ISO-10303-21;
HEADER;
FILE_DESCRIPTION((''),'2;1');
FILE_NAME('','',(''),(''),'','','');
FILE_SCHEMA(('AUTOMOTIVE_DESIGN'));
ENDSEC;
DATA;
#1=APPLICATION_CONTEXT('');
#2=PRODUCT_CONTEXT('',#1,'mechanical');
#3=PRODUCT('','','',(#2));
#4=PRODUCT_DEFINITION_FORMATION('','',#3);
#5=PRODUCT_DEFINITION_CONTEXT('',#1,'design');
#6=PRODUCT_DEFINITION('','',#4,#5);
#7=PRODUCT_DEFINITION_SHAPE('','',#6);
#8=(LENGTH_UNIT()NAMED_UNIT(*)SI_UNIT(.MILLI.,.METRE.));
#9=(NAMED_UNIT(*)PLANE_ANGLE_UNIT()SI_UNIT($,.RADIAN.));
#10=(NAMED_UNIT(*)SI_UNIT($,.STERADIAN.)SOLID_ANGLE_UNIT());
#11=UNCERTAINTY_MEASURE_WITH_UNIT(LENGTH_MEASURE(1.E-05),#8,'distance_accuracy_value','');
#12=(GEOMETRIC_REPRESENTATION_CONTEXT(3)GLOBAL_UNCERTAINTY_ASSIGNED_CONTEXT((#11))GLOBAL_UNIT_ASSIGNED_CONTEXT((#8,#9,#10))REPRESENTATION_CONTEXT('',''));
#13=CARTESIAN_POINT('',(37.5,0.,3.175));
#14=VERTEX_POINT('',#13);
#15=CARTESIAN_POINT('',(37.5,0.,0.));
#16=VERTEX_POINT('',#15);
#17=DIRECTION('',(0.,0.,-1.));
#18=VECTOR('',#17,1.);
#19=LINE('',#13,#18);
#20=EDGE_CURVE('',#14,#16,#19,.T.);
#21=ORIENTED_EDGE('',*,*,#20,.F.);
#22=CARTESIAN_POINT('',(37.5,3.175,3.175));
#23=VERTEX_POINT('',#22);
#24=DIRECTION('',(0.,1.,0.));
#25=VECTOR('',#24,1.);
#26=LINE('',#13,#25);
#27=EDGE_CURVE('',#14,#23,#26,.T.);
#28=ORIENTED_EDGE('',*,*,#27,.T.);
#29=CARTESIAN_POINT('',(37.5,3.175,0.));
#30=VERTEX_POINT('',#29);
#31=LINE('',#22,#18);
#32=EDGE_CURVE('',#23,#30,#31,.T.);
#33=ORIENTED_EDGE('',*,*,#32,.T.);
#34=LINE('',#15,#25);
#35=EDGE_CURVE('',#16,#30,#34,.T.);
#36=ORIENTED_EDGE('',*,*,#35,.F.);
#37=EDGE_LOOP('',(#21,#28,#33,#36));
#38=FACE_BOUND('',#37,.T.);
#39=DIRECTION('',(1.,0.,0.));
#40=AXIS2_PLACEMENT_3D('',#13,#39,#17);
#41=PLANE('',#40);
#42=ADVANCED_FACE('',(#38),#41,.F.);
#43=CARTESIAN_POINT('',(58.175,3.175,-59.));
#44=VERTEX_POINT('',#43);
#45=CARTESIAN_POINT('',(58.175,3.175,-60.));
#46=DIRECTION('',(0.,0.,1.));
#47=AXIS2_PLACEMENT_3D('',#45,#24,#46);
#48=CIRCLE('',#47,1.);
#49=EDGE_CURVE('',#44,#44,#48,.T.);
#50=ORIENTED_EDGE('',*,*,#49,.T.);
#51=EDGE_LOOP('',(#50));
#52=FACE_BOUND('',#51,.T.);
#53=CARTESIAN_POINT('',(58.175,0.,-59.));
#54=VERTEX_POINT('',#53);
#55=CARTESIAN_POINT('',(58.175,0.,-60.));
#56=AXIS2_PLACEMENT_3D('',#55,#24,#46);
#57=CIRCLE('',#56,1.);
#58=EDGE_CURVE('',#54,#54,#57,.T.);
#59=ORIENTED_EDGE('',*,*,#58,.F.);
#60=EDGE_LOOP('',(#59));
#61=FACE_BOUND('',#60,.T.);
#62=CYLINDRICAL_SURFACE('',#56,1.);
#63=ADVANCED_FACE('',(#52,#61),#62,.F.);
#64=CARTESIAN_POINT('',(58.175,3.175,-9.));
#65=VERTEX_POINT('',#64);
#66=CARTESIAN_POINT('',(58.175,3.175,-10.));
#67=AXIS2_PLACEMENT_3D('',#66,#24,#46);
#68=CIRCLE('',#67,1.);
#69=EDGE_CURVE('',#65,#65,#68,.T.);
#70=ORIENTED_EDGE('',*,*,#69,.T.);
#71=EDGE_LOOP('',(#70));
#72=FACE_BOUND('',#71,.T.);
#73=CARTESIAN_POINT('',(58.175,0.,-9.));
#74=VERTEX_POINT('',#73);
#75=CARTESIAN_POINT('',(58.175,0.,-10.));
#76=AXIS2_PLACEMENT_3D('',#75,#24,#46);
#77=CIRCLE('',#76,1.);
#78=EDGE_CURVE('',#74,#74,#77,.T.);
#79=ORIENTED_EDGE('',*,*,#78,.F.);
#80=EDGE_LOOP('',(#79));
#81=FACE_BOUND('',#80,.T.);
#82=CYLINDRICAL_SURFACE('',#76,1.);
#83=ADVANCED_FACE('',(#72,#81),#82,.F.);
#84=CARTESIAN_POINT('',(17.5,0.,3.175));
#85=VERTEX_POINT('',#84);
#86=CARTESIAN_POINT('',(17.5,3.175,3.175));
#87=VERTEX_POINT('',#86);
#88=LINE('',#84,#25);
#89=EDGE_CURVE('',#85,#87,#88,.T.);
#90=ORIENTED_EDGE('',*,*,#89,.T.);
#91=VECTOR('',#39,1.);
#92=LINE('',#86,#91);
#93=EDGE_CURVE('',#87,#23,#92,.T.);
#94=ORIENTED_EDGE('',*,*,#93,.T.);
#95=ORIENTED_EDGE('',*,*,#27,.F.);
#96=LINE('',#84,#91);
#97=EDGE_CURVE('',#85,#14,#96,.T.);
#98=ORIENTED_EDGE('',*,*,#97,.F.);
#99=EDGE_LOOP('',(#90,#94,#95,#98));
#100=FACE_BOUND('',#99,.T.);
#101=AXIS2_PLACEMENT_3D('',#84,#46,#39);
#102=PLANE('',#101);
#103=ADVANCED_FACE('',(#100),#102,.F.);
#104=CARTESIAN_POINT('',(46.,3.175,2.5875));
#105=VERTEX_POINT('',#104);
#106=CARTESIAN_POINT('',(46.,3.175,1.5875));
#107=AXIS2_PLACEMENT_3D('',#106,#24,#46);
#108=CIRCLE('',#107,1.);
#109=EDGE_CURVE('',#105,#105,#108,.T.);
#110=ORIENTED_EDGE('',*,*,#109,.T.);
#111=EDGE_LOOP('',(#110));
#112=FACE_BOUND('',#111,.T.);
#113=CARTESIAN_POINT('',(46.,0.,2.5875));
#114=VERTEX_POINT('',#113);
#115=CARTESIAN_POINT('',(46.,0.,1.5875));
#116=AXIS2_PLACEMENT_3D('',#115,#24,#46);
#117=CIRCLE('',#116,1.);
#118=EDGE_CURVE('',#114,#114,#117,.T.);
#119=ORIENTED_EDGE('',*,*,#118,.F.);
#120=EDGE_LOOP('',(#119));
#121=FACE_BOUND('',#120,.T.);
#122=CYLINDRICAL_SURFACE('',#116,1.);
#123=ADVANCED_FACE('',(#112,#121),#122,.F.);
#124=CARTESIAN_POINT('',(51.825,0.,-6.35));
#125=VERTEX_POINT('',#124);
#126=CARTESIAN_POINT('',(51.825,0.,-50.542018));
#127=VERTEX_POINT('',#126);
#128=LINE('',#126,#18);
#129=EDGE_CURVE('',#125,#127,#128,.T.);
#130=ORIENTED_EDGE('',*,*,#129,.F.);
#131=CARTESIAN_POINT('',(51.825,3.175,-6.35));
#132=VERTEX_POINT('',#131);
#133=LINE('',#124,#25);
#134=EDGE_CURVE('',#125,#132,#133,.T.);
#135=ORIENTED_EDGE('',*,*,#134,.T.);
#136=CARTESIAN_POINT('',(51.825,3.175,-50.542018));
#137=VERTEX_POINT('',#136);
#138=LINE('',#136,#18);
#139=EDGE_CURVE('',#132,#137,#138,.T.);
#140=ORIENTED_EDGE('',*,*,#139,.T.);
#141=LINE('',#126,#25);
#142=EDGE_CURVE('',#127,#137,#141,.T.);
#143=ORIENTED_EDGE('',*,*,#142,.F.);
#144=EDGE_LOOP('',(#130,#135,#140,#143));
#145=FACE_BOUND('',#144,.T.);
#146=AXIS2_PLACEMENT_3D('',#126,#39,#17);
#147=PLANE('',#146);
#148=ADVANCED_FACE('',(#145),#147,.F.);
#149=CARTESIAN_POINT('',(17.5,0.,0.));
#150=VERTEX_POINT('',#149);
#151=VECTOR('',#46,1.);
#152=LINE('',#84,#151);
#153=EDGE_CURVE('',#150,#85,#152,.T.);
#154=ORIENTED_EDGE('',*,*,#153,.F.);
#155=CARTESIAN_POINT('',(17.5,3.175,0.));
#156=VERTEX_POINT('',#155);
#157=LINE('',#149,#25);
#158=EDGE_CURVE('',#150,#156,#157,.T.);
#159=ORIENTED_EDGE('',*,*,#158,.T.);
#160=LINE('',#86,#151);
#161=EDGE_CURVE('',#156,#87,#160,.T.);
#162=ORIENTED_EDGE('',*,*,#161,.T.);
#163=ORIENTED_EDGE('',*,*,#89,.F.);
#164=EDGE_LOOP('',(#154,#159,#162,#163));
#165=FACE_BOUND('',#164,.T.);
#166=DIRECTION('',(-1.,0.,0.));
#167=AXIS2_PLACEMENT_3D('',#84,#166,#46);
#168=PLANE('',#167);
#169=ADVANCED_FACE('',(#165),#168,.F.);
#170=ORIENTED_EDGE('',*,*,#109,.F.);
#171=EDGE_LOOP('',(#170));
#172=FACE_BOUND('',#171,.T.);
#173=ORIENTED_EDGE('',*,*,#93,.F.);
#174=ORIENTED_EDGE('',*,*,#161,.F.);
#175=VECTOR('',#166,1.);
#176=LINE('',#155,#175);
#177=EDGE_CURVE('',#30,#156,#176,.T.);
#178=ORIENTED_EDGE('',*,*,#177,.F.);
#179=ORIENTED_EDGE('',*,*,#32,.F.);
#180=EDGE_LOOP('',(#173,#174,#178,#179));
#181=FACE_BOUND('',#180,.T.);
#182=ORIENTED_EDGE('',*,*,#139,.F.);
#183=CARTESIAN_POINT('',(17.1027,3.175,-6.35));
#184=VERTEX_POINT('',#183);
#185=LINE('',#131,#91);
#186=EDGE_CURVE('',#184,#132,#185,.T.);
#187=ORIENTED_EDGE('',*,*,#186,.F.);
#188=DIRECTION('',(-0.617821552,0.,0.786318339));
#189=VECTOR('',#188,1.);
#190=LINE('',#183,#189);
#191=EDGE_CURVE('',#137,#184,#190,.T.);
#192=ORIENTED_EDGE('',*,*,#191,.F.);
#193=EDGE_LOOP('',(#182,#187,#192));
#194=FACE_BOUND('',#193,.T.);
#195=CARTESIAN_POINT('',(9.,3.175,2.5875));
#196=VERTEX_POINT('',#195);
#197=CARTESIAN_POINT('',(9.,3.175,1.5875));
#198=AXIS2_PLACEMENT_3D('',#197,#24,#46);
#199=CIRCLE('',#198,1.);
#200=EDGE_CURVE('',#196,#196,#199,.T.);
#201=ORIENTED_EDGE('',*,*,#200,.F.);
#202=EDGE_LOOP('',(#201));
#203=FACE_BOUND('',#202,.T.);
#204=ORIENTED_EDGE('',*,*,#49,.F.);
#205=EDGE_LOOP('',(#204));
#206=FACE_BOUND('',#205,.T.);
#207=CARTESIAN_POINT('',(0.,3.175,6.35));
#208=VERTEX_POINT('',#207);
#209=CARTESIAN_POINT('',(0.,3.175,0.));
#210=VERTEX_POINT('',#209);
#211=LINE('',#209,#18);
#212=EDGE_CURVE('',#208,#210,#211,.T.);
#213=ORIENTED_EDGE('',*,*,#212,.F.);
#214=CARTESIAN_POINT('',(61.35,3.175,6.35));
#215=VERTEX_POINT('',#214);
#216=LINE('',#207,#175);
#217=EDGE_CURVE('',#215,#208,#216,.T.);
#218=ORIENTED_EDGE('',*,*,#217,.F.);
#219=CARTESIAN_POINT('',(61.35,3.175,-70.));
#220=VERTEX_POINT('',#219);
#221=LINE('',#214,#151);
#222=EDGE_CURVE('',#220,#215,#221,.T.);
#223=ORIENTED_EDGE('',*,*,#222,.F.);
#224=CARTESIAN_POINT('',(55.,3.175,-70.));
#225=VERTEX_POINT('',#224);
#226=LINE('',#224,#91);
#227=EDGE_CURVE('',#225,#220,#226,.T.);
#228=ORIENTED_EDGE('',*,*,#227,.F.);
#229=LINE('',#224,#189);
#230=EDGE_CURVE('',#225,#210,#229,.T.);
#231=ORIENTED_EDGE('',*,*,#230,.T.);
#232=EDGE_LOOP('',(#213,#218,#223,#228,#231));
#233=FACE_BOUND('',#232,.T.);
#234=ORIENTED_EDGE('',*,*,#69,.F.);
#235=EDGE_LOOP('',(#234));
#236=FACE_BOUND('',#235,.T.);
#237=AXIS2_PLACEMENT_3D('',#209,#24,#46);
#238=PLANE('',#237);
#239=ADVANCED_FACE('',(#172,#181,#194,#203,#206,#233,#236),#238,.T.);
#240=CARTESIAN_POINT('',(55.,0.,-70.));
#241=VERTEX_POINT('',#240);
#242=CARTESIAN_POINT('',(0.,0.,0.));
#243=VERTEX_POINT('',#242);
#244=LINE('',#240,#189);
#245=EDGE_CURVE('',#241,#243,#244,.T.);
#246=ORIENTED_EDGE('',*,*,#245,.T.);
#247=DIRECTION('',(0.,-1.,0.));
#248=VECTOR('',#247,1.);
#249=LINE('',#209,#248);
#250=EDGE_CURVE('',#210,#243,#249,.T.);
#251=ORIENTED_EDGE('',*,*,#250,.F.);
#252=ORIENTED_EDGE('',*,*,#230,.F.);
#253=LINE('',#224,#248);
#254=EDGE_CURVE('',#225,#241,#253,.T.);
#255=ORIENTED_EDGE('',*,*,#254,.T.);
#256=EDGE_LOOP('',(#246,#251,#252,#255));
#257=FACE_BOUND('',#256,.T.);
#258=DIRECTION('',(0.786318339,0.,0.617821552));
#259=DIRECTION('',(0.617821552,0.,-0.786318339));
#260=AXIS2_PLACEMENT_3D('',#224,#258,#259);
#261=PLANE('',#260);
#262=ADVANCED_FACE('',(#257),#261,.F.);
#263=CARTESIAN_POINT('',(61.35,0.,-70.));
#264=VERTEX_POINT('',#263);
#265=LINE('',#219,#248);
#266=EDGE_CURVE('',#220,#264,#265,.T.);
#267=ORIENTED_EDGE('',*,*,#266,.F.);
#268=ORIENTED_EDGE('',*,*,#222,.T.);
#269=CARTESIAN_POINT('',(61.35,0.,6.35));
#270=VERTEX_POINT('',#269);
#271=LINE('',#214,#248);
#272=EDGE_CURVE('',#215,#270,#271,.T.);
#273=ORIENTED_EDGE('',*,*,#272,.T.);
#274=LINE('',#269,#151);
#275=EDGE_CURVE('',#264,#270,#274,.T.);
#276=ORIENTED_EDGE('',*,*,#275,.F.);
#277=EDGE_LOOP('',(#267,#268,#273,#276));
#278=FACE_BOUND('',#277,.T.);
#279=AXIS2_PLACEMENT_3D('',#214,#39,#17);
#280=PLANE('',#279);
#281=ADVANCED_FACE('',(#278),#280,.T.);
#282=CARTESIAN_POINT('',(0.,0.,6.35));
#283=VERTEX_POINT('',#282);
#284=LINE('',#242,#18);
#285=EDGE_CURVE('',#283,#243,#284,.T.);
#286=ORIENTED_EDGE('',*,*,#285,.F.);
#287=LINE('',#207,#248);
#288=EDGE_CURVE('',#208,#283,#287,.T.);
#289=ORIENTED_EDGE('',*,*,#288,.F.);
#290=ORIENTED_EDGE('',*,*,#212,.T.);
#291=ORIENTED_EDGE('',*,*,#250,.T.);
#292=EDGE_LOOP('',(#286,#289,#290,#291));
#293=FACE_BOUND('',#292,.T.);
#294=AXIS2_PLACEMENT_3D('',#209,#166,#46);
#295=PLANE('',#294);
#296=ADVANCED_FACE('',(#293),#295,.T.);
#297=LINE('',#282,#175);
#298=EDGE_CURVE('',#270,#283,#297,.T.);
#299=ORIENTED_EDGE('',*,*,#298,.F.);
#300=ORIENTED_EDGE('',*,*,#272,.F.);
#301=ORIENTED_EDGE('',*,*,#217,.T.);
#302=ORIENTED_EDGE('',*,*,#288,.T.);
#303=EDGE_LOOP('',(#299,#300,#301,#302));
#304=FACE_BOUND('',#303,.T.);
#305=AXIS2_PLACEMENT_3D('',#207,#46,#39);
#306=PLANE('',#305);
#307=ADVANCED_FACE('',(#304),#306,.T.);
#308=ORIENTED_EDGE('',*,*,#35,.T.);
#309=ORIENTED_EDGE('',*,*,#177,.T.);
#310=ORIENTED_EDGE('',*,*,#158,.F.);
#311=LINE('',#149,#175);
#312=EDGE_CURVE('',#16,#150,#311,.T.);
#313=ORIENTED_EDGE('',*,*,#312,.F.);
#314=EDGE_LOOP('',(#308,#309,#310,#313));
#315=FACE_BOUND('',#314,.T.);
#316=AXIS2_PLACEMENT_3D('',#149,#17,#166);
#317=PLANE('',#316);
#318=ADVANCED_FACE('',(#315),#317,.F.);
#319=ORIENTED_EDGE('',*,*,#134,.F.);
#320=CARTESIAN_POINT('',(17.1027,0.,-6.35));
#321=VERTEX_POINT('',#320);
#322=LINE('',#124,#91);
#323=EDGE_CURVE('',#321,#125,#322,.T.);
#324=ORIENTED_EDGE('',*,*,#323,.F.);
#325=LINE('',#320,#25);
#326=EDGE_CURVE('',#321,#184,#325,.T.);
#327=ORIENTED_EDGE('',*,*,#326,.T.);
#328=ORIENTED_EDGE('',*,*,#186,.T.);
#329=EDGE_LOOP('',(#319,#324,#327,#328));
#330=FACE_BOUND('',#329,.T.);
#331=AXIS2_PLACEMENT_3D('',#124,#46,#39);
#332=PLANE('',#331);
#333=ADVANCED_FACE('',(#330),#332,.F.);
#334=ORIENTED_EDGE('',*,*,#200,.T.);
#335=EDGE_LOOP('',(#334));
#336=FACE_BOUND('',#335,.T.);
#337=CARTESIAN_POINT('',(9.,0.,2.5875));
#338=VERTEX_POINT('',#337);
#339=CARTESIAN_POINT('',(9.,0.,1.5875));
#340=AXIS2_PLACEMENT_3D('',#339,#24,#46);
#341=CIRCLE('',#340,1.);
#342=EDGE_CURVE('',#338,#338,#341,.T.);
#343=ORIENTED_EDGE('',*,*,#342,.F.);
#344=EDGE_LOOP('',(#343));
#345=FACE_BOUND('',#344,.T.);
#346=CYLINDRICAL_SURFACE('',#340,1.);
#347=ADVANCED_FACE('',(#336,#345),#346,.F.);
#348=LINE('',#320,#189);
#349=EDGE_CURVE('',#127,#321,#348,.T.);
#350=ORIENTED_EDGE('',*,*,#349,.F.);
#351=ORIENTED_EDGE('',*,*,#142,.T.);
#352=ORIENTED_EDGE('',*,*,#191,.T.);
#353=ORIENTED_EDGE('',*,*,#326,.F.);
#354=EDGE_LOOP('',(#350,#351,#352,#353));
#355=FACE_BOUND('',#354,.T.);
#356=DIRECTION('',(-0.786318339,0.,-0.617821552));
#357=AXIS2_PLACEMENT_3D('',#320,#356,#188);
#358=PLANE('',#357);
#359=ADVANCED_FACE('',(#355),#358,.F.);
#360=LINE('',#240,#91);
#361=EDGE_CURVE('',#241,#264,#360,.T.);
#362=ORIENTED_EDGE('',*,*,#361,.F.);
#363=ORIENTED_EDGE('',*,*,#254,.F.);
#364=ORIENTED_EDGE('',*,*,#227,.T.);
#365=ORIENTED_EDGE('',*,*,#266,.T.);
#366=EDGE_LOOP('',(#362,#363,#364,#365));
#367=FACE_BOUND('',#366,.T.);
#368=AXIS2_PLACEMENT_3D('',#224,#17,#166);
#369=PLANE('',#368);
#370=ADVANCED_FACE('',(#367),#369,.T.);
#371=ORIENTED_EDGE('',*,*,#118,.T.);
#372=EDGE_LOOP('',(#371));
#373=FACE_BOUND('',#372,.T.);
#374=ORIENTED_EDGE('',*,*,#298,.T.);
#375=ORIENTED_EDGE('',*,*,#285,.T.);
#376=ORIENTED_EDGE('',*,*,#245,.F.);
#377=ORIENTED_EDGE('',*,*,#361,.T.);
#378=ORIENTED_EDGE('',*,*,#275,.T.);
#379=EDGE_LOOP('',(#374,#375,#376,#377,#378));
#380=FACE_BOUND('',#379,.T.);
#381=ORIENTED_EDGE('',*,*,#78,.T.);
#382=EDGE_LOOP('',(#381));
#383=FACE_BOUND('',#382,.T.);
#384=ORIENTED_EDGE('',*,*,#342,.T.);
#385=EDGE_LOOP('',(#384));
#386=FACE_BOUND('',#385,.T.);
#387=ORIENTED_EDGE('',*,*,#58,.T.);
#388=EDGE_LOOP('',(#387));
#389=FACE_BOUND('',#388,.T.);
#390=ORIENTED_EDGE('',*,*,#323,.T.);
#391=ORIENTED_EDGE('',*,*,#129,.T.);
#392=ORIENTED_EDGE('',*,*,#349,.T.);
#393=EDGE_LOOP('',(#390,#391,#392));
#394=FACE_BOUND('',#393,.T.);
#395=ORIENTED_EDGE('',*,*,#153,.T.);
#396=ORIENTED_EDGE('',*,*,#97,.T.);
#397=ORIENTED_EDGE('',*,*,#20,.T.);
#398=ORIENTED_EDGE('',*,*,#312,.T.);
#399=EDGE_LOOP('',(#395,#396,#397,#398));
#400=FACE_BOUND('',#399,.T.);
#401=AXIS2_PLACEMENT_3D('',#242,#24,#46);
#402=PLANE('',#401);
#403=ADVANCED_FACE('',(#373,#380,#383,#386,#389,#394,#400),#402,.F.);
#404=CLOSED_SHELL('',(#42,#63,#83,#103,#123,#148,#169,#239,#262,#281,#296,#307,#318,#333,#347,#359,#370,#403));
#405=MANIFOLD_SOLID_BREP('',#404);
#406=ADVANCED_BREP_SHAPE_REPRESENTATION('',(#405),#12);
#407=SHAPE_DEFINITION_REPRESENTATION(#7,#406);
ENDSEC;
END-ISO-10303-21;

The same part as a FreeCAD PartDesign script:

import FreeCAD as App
import Part
import Sketcher
Q = App.Units.Quantity


def add_polygon(sketch, points):
    """Adds a closed chain of lines whose ends are joined by coincident constraints."""
    first, n = sketch.GeometryCount, len(points)
    for a, b in zip(points, points[1:] + points[:1]):
        sketch.addGeometry(Part.LineSegment(App.Vector(*a, 0), App.Vector(*b, 0)), False)
    for i in range(n):
        sketch.addConstraint(Sketcher.Constraint("Coincident", first + i, 2, first + (i + 1) % n, 1))

doc = App.newDocument("Part")
body = doc.addObject("PartDesign::Body", "Body")

# Sketch on XZ plane
sketch1 = body.newObject("Sketcher::SketchObject", "Sketch")
sketch1.AttachmentSupport = (doc.getObject("XZ_Plane"), [""])
sketch1.MapMode = "FlatFace"
add_polygon(sketch1, [(0, 0), (55, 0), (55, -70)])  # lines 0-2
sketch1.addConstraint(Sketcher.Constraint("Horizontal", 0))
sketch1.addConstraint(Sketcher.Constraint("Vertical", 1))
sketch1.addConstraint(Sketcher.Constraint("Coincident", 2, 2, -1, 1))
sketch1.addConstraint(Sketcher.Constraint("DistanceX", 0, 1, 0, 2, Q("55 mm")))
sketch1.addConstraint(Sketcher.Constraint("DistanceY", 1, 2, 1, 1, Q("70 mm")))
pad1 = body.newObject("PartDesign::Pad", "Pad")
pad1.Profile = sketch1
pad1.Length = 3.175
pad1.Reversed = True

# Sketch on XZ plane
sketch2 = body.newObject("Sketcher::SketchObject", "Sketch001")
sketch2.AttachmentSupport = (doc.getObject("XZ_Plane"), [""])
sketch2.MapMode = "FlatFace"
add_polygon(sketch2, [(0, 6), (0, 0), (55, 0), (55, 6)])  # lines 0-3
sketch2.addConstraint(Sketcher.Constraint("Vertical", 0))
sketch2.addConstraint(Sketcher.Constraint("Horizontal", 1))
sketch2.addConstraint(Sketcher.Constraint("Vertical", 2))
sketch2.addConstraint(Sketcher.Constraint("Horizontal", 3))
sketch2.addConstraint(Sketcher.Constraint("Coincident", 0, 2, -1, 1))
sketch2.addConstraint(Sketcher.Constraint("DistanceX", 1, 1, 1, 2, Q("55 mm")))
sketch2.addConstraint(Sketcher.Constraint("DistanceY", 0, 2, 0, 1, Q("6.35 mm")))
pad2 = body.newObject("PartDesign::Pad", "Pad001")
pad2.Profile = sketch2
pad2.Length = 3.175
pad2.Reversed = True

# Sketch on XZ plane
sketch3 = body.newObject("Sketcher::SketchObject", "Sketch002")
sketch3.AttachmentSupport = (doc.getObject("XZ_Plane"), [""])
sketch3.MapMode = "FlatFace"
add_polygon(sketch3, [(55, 6), (55, -70), (61, -70), (61, 6)])  # lines 0-3
sketch3.addConstraint(Sketcher.Constraint("Vertical", 0))
sketch3.addConstraint(Sketcher.Constraint("Horizontal", 1))
sketch3.addConstraint(Sketcher.Constraint("Vertical", 2))
sketch3.addConstraint(Sketcher.Constraint("Horizontal", 3))
sketch3.addConstraint(Sketcher.Constraint("DistanceX", -1, 1, 0, 2, Q("55 mm")))
sketch3.addConstraint(Sketcher.Constraint("DistanceY", 0, 2, -1, 1, Q("70 mm")))
sketch3.addConstraint(Sketcher.Constraint("DistanceX", 1, 1, 1, 2, Q("6.35 mm")))
sketch3.addConstraint(Sketcher.Constraint("DistanceY", 0, 2, 0, 1, Q("76.35 mm")))
pad3 = body.newObject("PartDesign::Pad", "Pad002")
pad3.Profile = sketch3
pad3.Length = 3.175
pad3.Reversed = True

# Sketch on XZ plane
sketch4 = body.newObject("Sketcher::SketchObject", "Sketch003")
sketch4.AttachmentSupport = (doc.getObject("XZ_Plane"), [""])
sketch4.MapMode = "FlatFace"
sketch4.AttachmentOffset = App.Placement(App.Vector(0, 0, -3.175), App.Rotation())
sketch4.addGeometry(Part.Circle(App.Vector(9, 1.6, 0), App.Vector(0, 0, 1), 1), False)  # 0
sketch4.addGeometry(Part.Circle(App.Vector(46, 1.6, 0), App.Vector(0, 0, 1), 1), False)  # 1
sketch4.addGeometry(Part.Circle(App.Vector(58.2, -60, 0), App.Vector(0, 0, 1), 1), False)  # 2
sketch4.addGeometry(Part.Circle(App.Vector(58.2, -10, 0), App.Vector(0, 0, 1), 1), False)  # 3
add_polygon(sketch4, [(17.5, 0), (17.5, 3.2), (37.5, 3.2), (37.5, 0)])  # lines 4-7
sketch4.addConstraint(Sketcher.Constraint("Vertical", 4))
sketch4.addConstraint(Sketcher.Constraint("Horizontal", 5))
sketch4.addConstraint(Sketcher.Constraint("Vertical", 6))
sketch4.addConstraint(Sketcher.Constraint("Horizontal", 7))
sketch4.addConstraint(Sketcher.Constraint("Equal", 0, 1))
sketch4.addConstraint(Sketcher.Constraint("Equal", 1, 2))
sketch4.addConstraint(Sketcher.Constraint("Equal", 2, 3))
sketch4.addConstraint(Sketcher.Constraint("PointOnObject", 6, 2, -1))
sketch4.addConstraint(Sketcher.Constraint("Horizontal", 0, 3, 1, 3))
sketch4.addConstraint(Sketcher.Constraint("Vertical", 2, 3, 3, 3))
sketch4.addConstraint(Sketcher.Constraint("Diameter", 0, Q("2 mm")))
sketch4.addConstraint(Sketcher.Constraint("DistanceX", 5, 1, 5, 2, Q("20 mm")))
sketch4.addConstraint(Sketcher.Constraint("DistanceX", -1, 1, 0, 3, Q("9 mm")))
sketch4.addConstraint(Sketcher.Constraint("DistanceX", -1, 1, 1, 3, Q("46 mm")))
sketch4.addConstraint(Sketcher.Constraint("DistanceY", 2, 3, -1, 1, Q("60 mm")))
sketch4.addConstraint(Sketcher.Constraint("DistanceY", 3, 3, -1, 1, Q("10 mm")))
sketch4.addConstraint(Sketcher.Constraint("DistanceX", -1, 1, 4, 2, Q("17.5 mm")))
sketch4.addConstraint(Sketcher.Constraint("DistanceY", 4, 1, 4, 2, Q("3.175 mm")))
sketch4.addConstraint(Sketcher.Constraint("DistanceX", -1, 1, 2, 3, Q("58.175 mm")))
sketch4.addConstraint(Sketcher.Constraint("DistanceY", -1, 1, 0, 3, Q("1.5875 mm")))
pocket1 = body.newObject("PartDesign::Pocket", "Pocket")
pocket1.Profile = sketch4
pocket1.Length = 3.175
pocket1.Reversed = True

# Sketch on XZ plane
sketch5 = body.newObject("Sketcher::SketchObject", "Sketch004")
sketch5.AttachmentSupport = (doc.getObject("XZ_Plane"), [""])
sketch5.MapMode = "FlatFace"
sketch5.AttachmentOffset = App.Placement(App.Vector(0, 0, -3.175), App.Rotation())
add_polygon(sketch5, [(17, -6), (52, -6), (52, -51)])  # lines 0-2
sketch5.addConstraint(Sketcher.Constraint("Horizontal", 0))
sketch5.addConstraint(Sketcher.Constraint("Vertical", 1))
sketch5.addConstraint(Sketcher.Constraint("DistanceY", 0, 2, -1, 1, Q("6.35 mm")))
sketch5.addConstraint(Sketcher.Constraint("DistanceX", 0, 1, 0, 2, Q("34.7223 mm")))
sketch5.addConstraint(Sketcher.Constraint("DistanceX", -1, 1, 0, 2, Q("51.825 mm")))
sketch5.addConstraint(Sketcher.Constraint("Distance", 2, Q("56.201179 mm")))
pocket2 = body.newObject("PartDesign::Pocket", "Pocket001")
pocket2.Profile = sketch5
pocket2.Length = 3.175
pocket2.Reversed = True

doc.recompute()
